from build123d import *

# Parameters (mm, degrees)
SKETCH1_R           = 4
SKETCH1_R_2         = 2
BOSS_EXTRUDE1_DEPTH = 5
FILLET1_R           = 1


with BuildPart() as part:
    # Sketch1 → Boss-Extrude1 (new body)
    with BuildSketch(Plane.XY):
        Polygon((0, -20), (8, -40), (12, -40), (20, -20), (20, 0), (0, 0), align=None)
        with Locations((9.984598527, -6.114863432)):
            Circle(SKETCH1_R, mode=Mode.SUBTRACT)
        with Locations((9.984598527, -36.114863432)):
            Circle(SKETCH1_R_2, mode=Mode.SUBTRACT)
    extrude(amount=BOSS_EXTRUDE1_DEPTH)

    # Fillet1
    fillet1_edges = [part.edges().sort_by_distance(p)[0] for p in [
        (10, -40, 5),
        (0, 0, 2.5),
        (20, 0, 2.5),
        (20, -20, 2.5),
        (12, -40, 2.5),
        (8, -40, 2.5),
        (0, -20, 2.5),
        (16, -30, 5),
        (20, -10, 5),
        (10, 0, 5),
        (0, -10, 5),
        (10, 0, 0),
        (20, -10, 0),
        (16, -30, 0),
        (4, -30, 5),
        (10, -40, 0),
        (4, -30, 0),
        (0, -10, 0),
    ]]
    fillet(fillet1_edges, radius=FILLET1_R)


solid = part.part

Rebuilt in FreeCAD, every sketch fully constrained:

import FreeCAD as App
import Part
import Sketcher

V = App.Vector
Q = App.Units.Quantity


def edges_at(feature, points):
    """Names of the edges that pass closest to the given points."""
    edges = feature.Shape.Edges
    near = lambda p: min(range(len(edges)), key=lambda i: edges[i].distToShape(Part.Vertex(*p))[0])
    return sorted({f"Edge{near(p) + 1}" for p in points})

doc = App.newDocument("Part")
body = doc.addObject("PartDesign::Body", "Body")

# Sketch on XY plane
sketch1 = doc.addObject("Sketcher::SketchObject", "Sketch")
body.addObject(sketch1)
sketch1.AttachmentSupport = (doc.XY_Plane, [""])
sketch1.MapMode = "FlatFace"
sketch1.addGeometry(Part.LineSegment(V(0, -20, 0), V(8, -40, 0)), False)
sketch1.addGeometry(Part.LineSegment(V(8, -40, 0), V(12, -40, 0)), False)
sketch1.addGeometry(Part.LineSegment(V(12, -40, 0), V(20, -20, 0)), False)
sketch1.addGeometry(Part.LineSegment(V(20, -20, 0), V(20, 0, 0)), False)
sketch1.addGeometry(Part.LineSegment(V(20, 0, 0), V(0, 0, 0)), False)
sketch1.addGeometry(Part.LineSegment(V(0, 0, 0), V(0, -20, 0)), False)
sketch1.addGeometry(Part.Circle(V(10, -36.1, 0), V(0, 0, 1), 2), False)
sketch1.addGeometry(Part.Circle(V(10, -6.1, 0), V(0, 0, 1), 4), False)
sketch1.addConstraint(Sketcher.Constraint("Coincident", 0, 2, 1, 1))
sketch1.addConstraint(Sketcher.Constraint("Coincident", 1, 2, 2, 1))
sketch1.addConstraint(Sketcher.Constraint("Coincident", 2, 2, 3, 1))
sketch1.addConstraint(Sketcher.Constraint("Coincident", 3, 2, 4, 1))
sketch1.addConstraint(Sketcher.Constraint("Coincident", 4, 2, 5, 1))
sketch1.addConstraint(Sketcher.Constraint("Coincident", 5, 2, 0, 1))
sketch1.addConstraint(Sketcher.Constraint("Horizontal", 1))
sketch1.addConstraint(Sketcher.Constraint("Vertical", 3))
sketch1.addConstraint(Sketcher.Constraint("Horizontal", 4))
sketch1.addConstraint(Sketcher.Constraint("Vertical", 5))
sketch1.addConstraint(Sketcher.Constraint("Coincident", 4, 2, -1, 1))
sketch1.addConstraint(Sketcher.Constraint("Horizontal", 2, 2, 5, 2))
sketch1.addConstraint(Sketcher.Constraint("Vertical", 6, 3, 7, 3))
sketch1.addConstraint(Sketcher.Constraint("Equal", 4, 3))
sketch1.addConstraint(Sketcher.Constraint("Equal", 0, 2))
sketch1.addConstraint(Sketcher.Constraint("Diameter", 6, Q("4 mm")))
sketch1.addConstraint(Sketcher.Constraint("Diameter", 7, Q("8 mm")))
sketch1.addConstraint(Sketcher.Constraint("DistanceX", 1, 1, 1, 2, Q("4 mm")))
sketch1.addConstraint(Sketcher.Constraint("DistanceX", 4, 2, 4, 1, Q("20 mm")))
sketch1.addConstraint(Sketcher.Constraint("DistanceY", 0, 2, -1, 1, Q("40 mm")))
sketch1.addConstraint(Sketcher.Constraint("DistanceY", 6, 3, 7, 3, Q("30 mm")))
sketch1.addConstraint(Sketcher.Constraint("DistanceX", -1, 1, 6, 3, Q("9.984599 mm")))
sketch1.addConstraint(Sketcher.Constraint("DistanceY", 6, 3, -1, 1, Q("36.114863 mm")))
pad1 = doc.addObject("PartDesign::Pad", "Pad")
body.addObject(pad1)
pad1.Profile = sketch1
pad1.Length = 5
doc.recompute()

fillet = doc.addObject("PartDesign::Fillet", "Fillet")
body.addObject(fillet)
fillet.Base = (pad1, edges_at(pad1, [
    (10, -40, 5),
    (0, 0, 2.5),
    (20, 0, 2.5),
    (20, -20, 2.5),
    (12, -40, 2.5),
    (8, -40, 2.5),
    (0, -20, 2.5),
    (16, -30, 5),
    (20, -10, 5),
    (10, 0, 5),
    (0, -10, 5),
    (10, 0, 0),
    (20, -10, 0),
    (16, -30, 0),
    (4, -30, 5),
    (10, -40, 0),
    (4, -30, 0),
    (0, -10, 0),
]))
fillet.Radius = 1

doc.recompute()
